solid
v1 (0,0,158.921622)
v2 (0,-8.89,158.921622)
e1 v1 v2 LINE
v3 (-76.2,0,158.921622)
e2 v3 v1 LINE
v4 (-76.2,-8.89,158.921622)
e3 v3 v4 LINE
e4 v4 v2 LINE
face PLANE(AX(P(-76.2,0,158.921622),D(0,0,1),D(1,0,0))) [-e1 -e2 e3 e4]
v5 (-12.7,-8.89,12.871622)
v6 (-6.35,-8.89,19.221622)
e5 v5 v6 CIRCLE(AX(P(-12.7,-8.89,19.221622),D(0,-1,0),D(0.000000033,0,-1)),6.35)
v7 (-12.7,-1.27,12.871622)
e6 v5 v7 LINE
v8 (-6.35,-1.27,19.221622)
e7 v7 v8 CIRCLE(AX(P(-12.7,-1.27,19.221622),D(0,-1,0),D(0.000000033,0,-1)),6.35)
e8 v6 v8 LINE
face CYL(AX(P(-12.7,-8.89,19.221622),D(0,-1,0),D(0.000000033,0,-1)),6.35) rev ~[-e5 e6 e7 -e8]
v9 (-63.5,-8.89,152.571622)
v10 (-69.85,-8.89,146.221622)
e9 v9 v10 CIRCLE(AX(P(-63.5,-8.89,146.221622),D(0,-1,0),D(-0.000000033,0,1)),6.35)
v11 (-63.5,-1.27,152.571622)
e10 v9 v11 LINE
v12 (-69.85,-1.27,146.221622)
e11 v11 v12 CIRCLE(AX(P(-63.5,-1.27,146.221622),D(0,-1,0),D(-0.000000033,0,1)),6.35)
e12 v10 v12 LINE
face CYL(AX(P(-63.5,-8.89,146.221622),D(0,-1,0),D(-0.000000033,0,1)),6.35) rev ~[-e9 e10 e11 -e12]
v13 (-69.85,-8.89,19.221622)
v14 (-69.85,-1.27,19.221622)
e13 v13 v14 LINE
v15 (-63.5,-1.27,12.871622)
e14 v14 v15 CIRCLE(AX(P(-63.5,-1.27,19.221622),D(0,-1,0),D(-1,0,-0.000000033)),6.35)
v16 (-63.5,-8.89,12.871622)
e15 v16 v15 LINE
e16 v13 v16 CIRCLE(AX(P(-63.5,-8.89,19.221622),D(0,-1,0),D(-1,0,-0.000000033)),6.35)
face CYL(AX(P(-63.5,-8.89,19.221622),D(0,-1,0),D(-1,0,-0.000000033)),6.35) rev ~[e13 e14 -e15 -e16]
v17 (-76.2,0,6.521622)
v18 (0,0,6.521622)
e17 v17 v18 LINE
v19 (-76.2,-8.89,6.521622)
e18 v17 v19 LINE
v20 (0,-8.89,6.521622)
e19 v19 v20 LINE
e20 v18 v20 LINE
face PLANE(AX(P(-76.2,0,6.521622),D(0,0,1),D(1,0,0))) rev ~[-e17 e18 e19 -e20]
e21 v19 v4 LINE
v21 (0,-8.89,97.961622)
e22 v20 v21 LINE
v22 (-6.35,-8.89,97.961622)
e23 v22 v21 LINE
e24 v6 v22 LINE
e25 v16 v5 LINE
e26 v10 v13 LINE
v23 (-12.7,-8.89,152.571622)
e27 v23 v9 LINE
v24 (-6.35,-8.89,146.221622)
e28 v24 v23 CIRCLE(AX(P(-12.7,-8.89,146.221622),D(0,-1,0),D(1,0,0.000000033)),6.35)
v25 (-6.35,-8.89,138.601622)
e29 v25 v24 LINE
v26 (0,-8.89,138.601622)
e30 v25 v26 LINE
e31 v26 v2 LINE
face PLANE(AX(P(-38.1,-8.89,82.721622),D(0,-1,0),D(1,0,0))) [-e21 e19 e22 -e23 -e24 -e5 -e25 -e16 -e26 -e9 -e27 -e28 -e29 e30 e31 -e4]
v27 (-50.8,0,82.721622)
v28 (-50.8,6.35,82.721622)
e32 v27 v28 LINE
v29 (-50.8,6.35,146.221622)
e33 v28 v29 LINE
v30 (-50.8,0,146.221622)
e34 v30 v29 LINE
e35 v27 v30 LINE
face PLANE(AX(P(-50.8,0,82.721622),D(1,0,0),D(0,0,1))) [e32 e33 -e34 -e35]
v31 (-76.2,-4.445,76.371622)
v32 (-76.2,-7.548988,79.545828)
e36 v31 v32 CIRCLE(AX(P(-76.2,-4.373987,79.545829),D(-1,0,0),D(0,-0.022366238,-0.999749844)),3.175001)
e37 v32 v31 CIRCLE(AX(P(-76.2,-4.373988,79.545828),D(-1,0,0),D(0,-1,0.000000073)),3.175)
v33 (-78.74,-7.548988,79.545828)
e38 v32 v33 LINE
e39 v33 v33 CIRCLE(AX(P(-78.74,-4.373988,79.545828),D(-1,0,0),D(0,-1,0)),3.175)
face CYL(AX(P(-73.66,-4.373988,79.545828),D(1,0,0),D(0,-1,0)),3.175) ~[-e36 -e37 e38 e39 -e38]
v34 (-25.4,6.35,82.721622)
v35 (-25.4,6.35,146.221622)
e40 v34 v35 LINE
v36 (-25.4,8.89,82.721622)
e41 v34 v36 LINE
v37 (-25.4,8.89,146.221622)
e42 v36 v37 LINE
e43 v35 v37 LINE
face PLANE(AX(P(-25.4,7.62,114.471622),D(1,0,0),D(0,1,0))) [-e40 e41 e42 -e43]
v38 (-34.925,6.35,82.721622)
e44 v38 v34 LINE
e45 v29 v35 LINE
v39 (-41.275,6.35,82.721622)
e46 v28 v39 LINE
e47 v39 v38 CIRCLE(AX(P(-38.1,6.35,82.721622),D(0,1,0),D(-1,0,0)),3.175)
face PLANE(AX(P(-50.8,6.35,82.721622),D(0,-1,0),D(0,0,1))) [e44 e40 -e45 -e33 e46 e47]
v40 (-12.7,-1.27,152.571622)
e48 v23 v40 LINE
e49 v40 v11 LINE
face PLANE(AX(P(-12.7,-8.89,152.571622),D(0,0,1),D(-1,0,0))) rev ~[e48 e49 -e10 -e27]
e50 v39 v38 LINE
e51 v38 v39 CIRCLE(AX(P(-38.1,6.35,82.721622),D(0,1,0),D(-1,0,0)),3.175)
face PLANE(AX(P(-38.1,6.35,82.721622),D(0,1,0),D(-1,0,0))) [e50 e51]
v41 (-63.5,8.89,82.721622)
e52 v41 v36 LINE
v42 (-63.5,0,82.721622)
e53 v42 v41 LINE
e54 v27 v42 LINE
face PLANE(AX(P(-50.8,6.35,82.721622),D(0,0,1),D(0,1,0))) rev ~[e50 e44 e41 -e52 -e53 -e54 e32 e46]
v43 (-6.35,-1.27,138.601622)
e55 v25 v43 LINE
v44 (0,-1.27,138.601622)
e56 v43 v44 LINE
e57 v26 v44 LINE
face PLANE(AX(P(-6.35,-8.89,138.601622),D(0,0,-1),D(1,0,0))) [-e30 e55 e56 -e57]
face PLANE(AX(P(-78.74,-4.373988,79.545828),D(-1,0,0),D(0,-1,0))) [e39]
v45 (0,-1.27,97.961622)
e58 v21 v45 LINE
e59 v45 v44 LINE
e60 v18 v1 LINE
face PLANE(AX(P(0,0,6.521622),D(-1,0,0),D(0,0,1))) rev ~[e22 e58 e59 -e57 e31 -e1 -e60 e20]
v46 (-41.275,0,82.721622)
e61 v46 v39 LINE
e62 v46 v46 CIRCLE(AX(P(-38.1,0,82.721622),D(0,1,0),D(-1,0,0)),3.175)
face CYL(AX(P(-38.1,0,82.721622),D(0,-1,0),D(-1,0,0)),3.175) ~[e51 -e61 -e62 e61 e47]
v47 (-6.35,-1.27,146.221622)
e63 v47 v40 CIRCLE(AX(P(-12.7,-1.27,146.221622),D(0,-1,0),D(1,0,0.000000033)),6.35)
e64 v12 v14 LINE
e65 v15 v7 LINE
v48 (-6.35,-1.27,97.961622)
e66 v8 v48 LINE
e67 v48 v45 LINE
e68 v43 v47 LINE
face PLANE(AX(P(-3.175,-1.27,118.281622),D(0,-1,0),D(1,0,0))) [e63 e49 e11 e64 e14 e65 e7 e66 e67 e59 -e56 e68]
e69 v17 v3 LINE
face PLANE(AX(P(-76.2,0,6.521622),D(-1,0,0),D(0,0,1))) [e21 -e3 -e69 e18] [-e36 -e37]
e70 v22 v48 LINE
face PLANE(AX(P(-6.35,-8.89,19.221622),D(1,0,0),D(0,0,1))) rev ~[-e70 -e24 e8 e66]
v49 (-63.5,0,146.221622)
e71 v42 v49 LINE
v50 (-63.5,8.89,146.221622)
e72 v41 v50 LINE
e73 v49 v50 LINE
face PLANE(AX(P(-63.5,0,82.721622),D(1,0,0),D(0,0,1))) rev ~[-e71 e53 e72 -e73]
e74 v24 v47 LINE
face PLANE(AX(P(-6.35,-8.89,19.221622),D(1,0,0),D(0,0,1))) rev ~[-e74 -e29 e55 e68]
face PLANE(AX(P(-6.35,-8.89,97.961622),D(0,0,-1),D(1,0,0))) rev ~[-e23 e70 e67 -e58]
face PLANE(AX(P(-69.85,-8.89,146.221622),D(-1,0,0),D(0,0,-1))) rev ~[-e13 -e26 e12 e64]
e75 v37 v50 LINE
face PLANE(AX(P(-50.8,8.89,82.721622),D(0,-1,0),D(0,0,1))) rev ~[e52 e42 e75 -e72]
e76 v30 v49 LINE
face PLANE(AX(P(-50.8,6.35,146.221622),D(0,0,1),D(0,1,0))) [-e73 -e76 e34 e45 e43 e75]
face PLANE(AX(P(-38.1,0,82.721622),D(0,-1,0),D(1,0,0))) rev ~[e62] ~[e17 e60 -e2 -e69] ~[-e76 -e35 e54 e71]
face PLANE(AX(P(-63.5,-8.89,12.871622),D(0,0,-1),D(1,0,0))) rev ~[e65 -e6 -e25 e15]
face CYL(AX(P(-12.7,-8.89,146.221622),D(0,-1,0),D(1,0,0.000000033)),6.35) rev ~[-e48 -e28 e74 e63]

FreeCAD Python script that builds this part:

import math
import FreeCAD as App
import Part
import Sketcher
from FreeCAD import Vector
Q = App.Units.Quantity

doc = App.newDocument("Part")
body = doc.addObject("PartDesign::Body", "Body")

# Sketch on XZ plane
sketch1 = body.newObject("Sketcher::SketchObject", "Sketch")
sketch1.AttachmentSupport = (doc.getObject("XZ_Plane"), [""])
sketch1.MapMode = "FlatFace"
sketch1.addGeometry(Part.LineSegment(Vector(-76, 159, 0), Vector(-76, 7, 0)), False)
sketch1.addGeometry(Part.LineSegment(Vector(-76, 7, 0), Vector(0, 7, 0)), False)
sketch1.addGeometry(Part.LineSegment(Vector(0, 7, 0), Vector(0, 159, 0)), False)
sketch1.addGeometry(Part.LineSegment(Vector(0, 159, 0), Vector(-76, 159, 0)), False)
sketch1.addConstraint(Sketcher.Constraint("Coincident", 0, 2, 1, 1))
sketch1.addConstraint(Sketcher.Constraint("Coincident", 1, 2, 2, 1))
sketch1.addConstraint(Sketcher.Constraint("Coincident", 2, 2, 3, 1))
sketch1.addConstraint(Sketcher.Constraint("Coincident", 3, 2, 0, 1))
sketch1.addConstraint(Sketcher.Constraint("Vertical", 0))
sketch1.addConstraint(Sketcher.Constraint("Horizontal", 1))
sketch1.addConstraint(Sketcher.Constraint("Vertical", 2))
sketch1.addConstraint(Sketcher.Constraint("Horizontal", 3))
sketch1.addConstraint(Sketcher.Constraint("PointOnObject", 1, 2, -2))
sketch1.addConstraint(Sketcher.Constraint("DistanceX", 1, 1, 1, 2, Q("3 in")))
sketch1.addConstraint(Sketcher.Constraint("DistanceY", 0, 2, 0, 1, Q("6 in")))
sketch1.addConstraint(Sketcher.Constraint("DistanceY", -1, 1, 0, 2, Q("6.521622 mm")))
pad1 = body.newObject("PartDesign::Pad", "Pad")
pad1.Profile = sketch1
pad1.Length = Q("0.35 in")

# Sketch on XZ plane
sketch2 = body.newObject("Sketcher::SketchObject", "Sketch001")
sketch2.AttachmentSupport = (doc.getObject("XZ_Plane"), [""])
sketch2.MapMode = "FlatFace"
sketch2.AttachmentOffset = App.Placement(Vector(0, 0, 0.35 * 25.4), App.Rotation())
sketch2.addGeometry(Part.ArcOfCircle(Part.Circle(Vector(-63, 19, 0), Vector(0, 0, 1), 6), math.radians(-180), math.radians(-90)), False)
sketch2.addGeometry(Part.LineSegment(Vector(-64, 13, 0), Vector(-13, 13, 0)), False)
sketch2.addGeometry(Part.ArcOfCircle(Part.Circle(Vector(-13, 19, 0), Vector(0, 0, 1), 6), math.radians(-90), math.radians(0)), False)
sketch2.addGeometry(Part.LineSegment(Vector(-6, 19, 0), Vector(-6, 146, 0)), False)
sketch2.addGeometry(Part.ArcOfCircle(Part.Circle(Vector(-13, 146, 0), Vector(0, 0, 1), 6), math.radians(0), math.radians(90)), False)
sketch2.addGeometry(Part.LineSegment(Vector(-13, 153, 0), Vector(-64, 153, 0)), False)
sketch2.addGeometry(Part.ArcOfCircle(Part.Circle(Vector(-63, 146, 0), Vector(0, 0, 1), 6), math.radians(90), math.radians(180)), False)
sketch2.addGeometry(Part.LineSegment(Vector(-70, 146, 0), Vector(-70, 19, 0)), False)
sketch2.addConstraint(Sketcher.Constraint("Tangent", 0, 2, 1, 1))
sketch2.addConstraint(Sketcher.Constraint("Tangent", 1, 2, 2, 1))
sketch2.addConstraint(Sketcher.Constraint("Tangent", 2, 2, 3, 1))
sketch2.addConstraint(Sketcher.Constraint("Tangent", 3, 2, 4, 1))
sketch2.addConstraint(Sketcher.Constraint("Tangent", 4, 2, 5, 1))
sketch2.addConstraint(Sketcher.Constraint("Tangent", 5, 2, 6, 1))
sketch2.addConstraint(Sketcher.Constraint("Tangent", 6, 2, 7, 1))
sketch2.addConstraint(Sketcher.Constraint("Tangent", 7, 2, 0, 1))
sketch2.addConstraint(Sketcher.Constraint("Horizontal", 1))
sketch2.addConstraint(Sketcher.Constraint("Vertical", 3))
sketch2.addConstraint(Sketcher.Constraint("Horizontal", 5))
sketch2.addConstraint(Sketcher.Constraint("Vertical", 7))
sketch2.addConstraint(Sketcher.Constraint("Equal", 0, 2))
sketch2.addConstraint(Sketcher.Constraint("Equal", 2, 4))
sketch2.addConstraint(Sketcher.Constraint("Equal", 4, 6))
sketch2.addConstraint(Sketcher.Constraint("DistanceX", 1, 1, 1, 2, Q("2 in")))
sketch2.addConstraint(Sketcher.Constraint("DistanceY", 3, 1, 3, 2, Q("5 in")))
sketch2.addConstraint(Sketcher.Constraint("Radius", 0, Q("0.25 in")))
sketch2.addConstraint(Sketcher.Constraint("DistanceX", 0, 3, -1, 1, Q("2.5 in")))
sketch2.addConstraint(Sketcher.Constraint("DistanceY", -1, 1, 4, 3, Q("146.221622 mm")))
pocket1 = body.newObject("PartDesign::Pocket", "Pocket")
pocket1.Profile = sketch2
pocket1.Length = Q("0.3 in")

# Sketch on XZ plane
sketch3 = body.newObject("Sketcher::SketchObject", "Sketch002")
sketch3.AttachmentSupport = (doc.getObject("XZ_Plane"), [""])
sketch3.MapMode = "FlatFace"
sketch3.AttachmentOffset = App.Placement(Vector(0, 0, 0.35 * 25.4), App.Rotation())
sketch3.addGeometry(Part.LineSegment(Vector(-6, 139, 0), Vector(-6, 98, 0)), False)
sketch3.addGeometry(Part.LineSegment(Vector(-6, 98, 0), Vector(0, 98, 0)), False)
sketch3.addGeometry(Part.LineSegment(Vector(0, 98, 0), Vector(0, 139, 0)), False)
sketch3.addGeometry(Part.LineSegment(Vector(0, 139, 0), Vector(-6, 139, 0)), False)
sketch3.addConstraint(Sketcher.Constraint("Coincident", 0, 2, 1, 1))
sketch3.addConstraint(Sketcher.Constraint("Coincident", 1, 2, 2, 1))
sketch3.addConstraint(Sketcher.Constraint("Coincident", 2, 2, 3, 1))
sketch3.addConstraint(Sketcher.Constraint("Coincident", 3, 2, 0, 1))
sketch3.addConstraint(Sketcher.Constraint("Vertical", 0))
sketch3.addConstraint(Sketcher.Constraint("Horizontal", 1))
sketch3.addConstraint(Sketcher.Constraint("Vertical", 2))
sketch3.addConstraint(Sketcher.Constraint("Horizontal", 3))
sketch3.addConstraint(Sketcher.Constraint("PointOnObject", 1, 2, -2))
sketch3.addConstraint(Sketcher.Constraint("DistanceY", 0, 2, 0, 1, Q("1.6 in")))
sketch3.addConstraint(Sketcher.Constraint("DistanceX", 1, 1, 1, 2, Q("0.25 in")))
sketch3.addConstraint(Sketcher.Constraint("DistanceY", -1, 1, 2, 2, Q("138.601622 mm")))
pocket2 = body.newObject("PartDesign::Pocket", "Pocket001")
pocket2.Profile = sketch3
pocket2.Length = Q("0.3 in")

# Sketch on YZ plane
sketch4 = body.newObject("Sketcher::SketchObject", "Sketch003")
sketch4.AttachmentSupport = (doc.getObject("YZ_Plane"), [""])
sketch4.MapMode = "FlatFace"
sketch4.AttachmentOffset = App.Placement(Vector(0, 0, -3 * 25.4), App.Rotation())
sketch4.addGeometry(Part.ArcOfCircle(Part.Circle(Vector(-4.4, 79.5, 0), Vector(0, 0, 1), 3.2), math.radians(-180), math.radians(-91)), False)
sketch4.addGeometry(Part.ArcOfCircle(Part.Circle(Vector(-4.4, 79.5, 0), Vector(0, 0, 1), 3.2), math.radians(-91), math.radians(180)), False)
sketch4.addConstraint(Sketcher.Constraint("Tangent", 0, 1, 1, 2))
sketch4.addConstraint(Sketcher.Constraint("Coincident", 1, 1, 0, 2))
sketch4.addConstraint(Sketcher.Constraint("Horizontal", 1, 3, 0, 1))
sketch4.addConstraint(Sketcher.Constraint("Radius", 0, Q("0.125 in")))
sketch4.addConstraint(Sketcher.Constraint("DistanceX", 1, 1, -1, 1, Q("0.175 in")))
sketch4.addConstraint(Sketcher.Constraint("DistanceY", -1, 1, 0, 3, Q("79.545829 mm")))
sketch4.addConstraint(Sketcher.Constraint("DistanceX", 1, 3, -1, 1, Q("4.373988 mm")))
pocket3 = body.newObject("PartDesign::Pocket", "Pocket002")
pocket3.Profile = sketch4
pocket3.Length = Q("0.1 in")
pocket3.Reversed = True

# Sketch on YZ plane
sketch5 = body.newObject("Sketcher::SketchObject", "Sketch004")
sketch5.AttachmentSupport = (doc.getObject("YZ_Plane"), [""])
sketch5.MapMode = "FlatFace"
sketch5.AttachmentOffset = App.Placement(Vector(0, 0, -2.9 * 25.4), App.Rotation())
sketch5.addGeometry(Part.Circle(Vector(-4.4, 79.5, 0), Vector(0, 0, 1), 3.2), False)
sketch5.addConstraint(Sketcher.Constraint("Diameter", 0, Q("0.25 in")))
sketch5.addConstraint(Sketcher.Constraint("DistanceY", -1, 1, 0, 3, Q("79.545828 mm")))
sketch5.addConstraint(Sketcher.Constraint("DistanceX", 0, 3, -1, 1, Q("4.373988 mm")))
pad2 = body.newObject("PartDesign::Pad", "Pad001")
pad2.Profile = sketch5
pad2.Length = Q("0.2 in")
pad2.Reversed = True

# Sketch on XZ plane
sketch6 = body.newObject("Sketcher::SketchObject", "Sketch005")
sketch6.AttachmentSupport = (doc.getObject("XZ_Plane"), [""])
sketch6.MapMode = "FlatFace"
sketch6.addGeometry(Part.Circle(Vector(-38.1, 82.7, 0), Vector(0, 0, 1), 3.2), False)
sketch6.addConstraint(Sketcher.Constraint("Diameter", 0, Q("0.25 in")))
sketch6.addConstraint(Sketcher.Constraint("DistanceX", 0, 3, -1, 1, Q("1.5 in")))
sketch6.addConstraint(Sketcher.Constraint("DistanceY", -1, 1, 0, 3, Q("82.721622 mm")))
pad3 = body.newObject("PartDesign::Pad", "Pad002")
pad3.Profile = sketch6
pad3.Length = Q("0.25 in")
pad3.Reversed = True

# Sketch on XZ plane
sketch7 = body.newObject("Sketcher::SketchObject", "Sketch006")
sketch7.AttachmentSupport = (doc.getObject("XZ_Plane"), [""])
sketch7.MapMode = "FlatFace"
sketch7.addGeometry(Part.LineSegment(Vector(-51, 146, 0), Vector(-51, 83, 0)), False)
sketch7.addGeometry(Part.LineSegment(Vector(-51, 83, 0), Vector(-64, 83, 0)), False)
sketch7.addGeometry(Part.LineSegment(Vector(-64, 83, 0), Vector(-64, 146, 0)), False)
sketch7.addGeometry(Part.LineSegment(Vector(-64, 146, 0), Vector(-51, 146, 0)), False)
sketch7.addConstraint(Sketcher.Constraint("Coincident", 0, 2, 1, 1))
sketch7.addConstraint(Sketcher.Constraint("Coincident", 1, 2, 2, 1))
sketch7.addConstraint(Sketcher.Constraint("Coincident", 2, 2, 3, 1))
sketch7.addConstraint(Sketcher.Constraint("Coincident", 3, 2, 0, 1))
sketch7.addConstraint(Sketcher.Constraint("Vertical", 0))
sketch7.addConstraint(Sketcher.Constraint("Horizontal", 1))
sketch7.addConstraint(Sketcher.Constraint("Vertical", 2))
sketch7.addConstraint(Sketcher.Constraint("Horizontal", 3))
sketch7.addConstraint(Sketcher.Constraint("DistanceX", 1, 2, 1, 1, Q("0.5 in")))
sketch7.addConstraint(Sketcher.Constraint("DistanceY", 0, 2, 0, 1, Q("2.5 in")))
sketch7.addConstraint(Sketcher.Constraint("DistanceX", 0, 2, -1, 1, Q("2 in")))
sketch7.addConstraint(Sketcher.Constraint("DistanceY", -1, 1, 0, 2, Q("82.721622 mm")))
pad4 = body.newObject("PartDesign::Pad", "Pad003")
pad4.Profile = sketch7
pad4.Length = Q("0.35 in")
pad4.Reversed = True

# Sketch on YZ plane
sketch8 = body.newObject("Sketcher::SketchObject", "Sketch007")
sketch8.AttachmentSupport = (doc.getObject("YZ_Plane"), [""])
sketch8.MapMode = "FlatFace"
sketch8.AttachmentOffset = App.Placement(Vector(0, 0, -2 * 25.4), App.Rotation())
sketch8.addGeometry(Part.LineSegment(Vector(6.3, 146.2, 0), Vector(6.3, 82.7, 0)), False)
sketch8.addGeometry(Part.LineSegment(Vector(6.3, 82.7, 0), Vector(8.9, 82.7, 0)), False)
sketch8.addGeometry(Part.LineSegment(Vector(8.9, 82.7, 0), Vector(8.9, 146.2, 0)), False)
sketch8.addGeometry(Part.LineSegment(Vector(8.9, 146.2, 0), Vector(6.3, 146.2, 0)), False)
sketch8.addConstraint(Sketcher.Constraint("Coincident", 0, 2, 1, 1))
sketch8.addConstraint(Sketcher.Constraint("Coincident", 1, 2, 2, 1))
sketch8.addConstraint(Sketcher.Constraint("Coincident", 2, 2, 3, 1))
sketch8.addConstraint(Sketcher.Constraint("Coincident", 3, 2, 0, 1))
sketch8.addConstraint(Sketcher.Constraint("Vertical", 0))
sketch8.addConstraint(Sketcher.Constraint("Horizontal", 1))
sketch8.addConstraint(Sketcher.Constraint("Vertical", 2))
sketch8.addConstraint(Sketcher.Constraint("Horizontal", 3))
sketch8.addConstraint(Sketcher.Constraint("DistanceX", 1, 1, 1, 2, Q("0.1 in")))
sketch8.addConstraint(Sketcher.Constraint("DistanceY", 0, 2, 0, 1, Q("2.5 in")))
sketch8.addConstraint(Sketcher.Constraint("DistanceX", -1, 1, 0, 2, Q("0.25 in")))
sketch8.addConstraint(Sketcher.Constraint("DistanceY", -1, 1, 0, 2, Q("82.721622 mm")))
pad5 = body.newObject("PartDesign::Pad", "Pad004")
pad5.Profile = sketch8
pad5.Length = Q("1 in")

doc.recompute()
